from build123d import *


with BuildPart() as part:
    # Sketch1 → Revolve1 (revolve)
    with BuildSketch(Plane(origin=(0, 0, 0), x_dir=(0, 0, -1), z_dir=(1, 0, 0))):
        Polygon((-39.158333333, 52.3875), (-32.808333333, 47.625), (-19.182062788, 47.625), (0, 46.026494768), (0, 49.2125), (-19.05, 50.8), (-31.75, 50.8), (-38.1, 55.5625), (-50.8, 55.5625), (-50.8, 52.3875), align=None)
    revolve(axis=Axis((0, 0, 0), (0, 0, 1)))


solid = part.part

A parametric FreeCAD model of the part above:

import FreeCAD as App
import Part
import Sketcher

V = App.Vector
Q = App.Units.Quantity

doc = App.newDocument("Part")
body = doc.addObject("PartDesign::Body", "Body")

sketch1 = body.newObject("Sketcher::SketchObject", "Sketch")
sketch1.AttachmentSupport = (doc.getObject("YZ_Plane"), [""])
sketch1.MapMode = "FlatFace"
sketch1.addGeometry(Part.LineSegment(V(52.4, 39.2, 0), V(47.6, 32.8, 0)), False)
sketch1.addGeometry(Part.LineSegment(V(47.6, 32.8, 0), V(47.6, 19.2, 0)), False)
sketch1.addGeometry(Part.LineSegment(V(47.6, 19.2, 0), V(46, 0, 0)), False)
sketch1.addGeometry(Part.LineSegment(V(46, 0, 0), V(49.2, 0, 0)), False)
sketch1.addGeometry(Part.LineSegment(V(49.2, 0, 0), V(50.8, 19.1, 0)), False)
sketch1.addGeometry(Part.LineSegment(V(50.8, 19.1, 0), V(50.8, 31.8, 0)), False)
sketch1.addGeometry(Part.LineSegment(V(50.8, 31.8, 0), V(55.6, 38.1, 0)), False)
sketch1.addGeometry(Part.LineSegment(V(55.6, 38.1, 0), V(55.6, 50.8, 0)), False)
sketch1.addGeometry(Part.LineSegment(V(55.6, 50.8, 0), V(52.4, 50.8, 0)), False)
sketch1.addGeometry(Part.LineSegment(V(52.4, 50.8, 0), V(52.4, 39.2, 0)), False)
sketch1.addConstraint(Sketcher.Constraint("Coincident", 0, 2, 1, 1))
sketch1.addConstraint(Sketcher.Constraint("Coincident", 1, 2, 2, 1))
sketch1.addConstraint(Sketcher.Constraint("Coincident", 2, 2, 3, 1))
sketch1.addConstraint(Sketcher.Constraint("Coincident", 3, 2, 4, 1))
sketch1.addConstraint(Sketcher.Constraint("Coincident", 4, 2, 5, 1))
sketch1.addConstraint(Sketcher.Constraint("Coincident", 5, 2, 6, 1))
sketch1.addConstraint(Sketcher.Constraint("Coincident", 6, 2, 7, 1))
sketch1.addConstraint(Sketcher.Constraint("Coincident", 7, 2, 8, 1))
sketch1.addConstraint(Sketcher.Constraint("Coincident", 8, 2, 9, 1))
sketch1.addConstraint(Sketcher.Constraint("Coincident", 9, 2, 0, 1))
sketch1.addConstraint(Sketcher.Constraint("Vertical", 1))
sketch1.addConstraint(Sketcher.Constraint("Horizontal", 3))
sketch1.addConstraint(Sketcher.Constraint("Vertical", 5))
sketch1.addConstraint(Sketcher.Constraint("Vertical", 7))
sketch1.addConstraint(Sketcher.Constraint("Horizontal", 8))
sketch1.addConstraint(Sketcher.Constraint("Vertical", 9))
sketch1.addConstraint(Sketcher.Constraint("PointOnObject", 2, 2, -1))
sketch1.addConstraint(Sketcher.Constraint("Parallel", 2, 4))
sketch1.addConstraint(Sketcher.Constraint("Parallel", 0, 6))
sketch1.addConstraint(Sketcher.Constraint("Equal", 5, 7))
sketch1.addConstraint(Sketcher.Constraint("Equal", 0, 6))
sketch1.addConstraint(Sketcher.Constraint("DistanceY", 5, 1, 5, 2, Q("0.5 in")))
sketch1.addConstraint(Sketcher.Constraint("DistanceX", -1, 1, 4, 2, Q("2 in")))
sketch1.addConstraint(Sketcher.Constraint("DistanceY", -1, 1, 7, 2, Q("2 in")))
sketch1.addConstraint(Sketcher.Constraint("DistanceX", 8, 2, 8, 1, Q("0.125 in")))
sketch1.addConstraint(Sketcher.Constraint("DistanceY", -1, 1, 4, 2, Q("0.75 in")))
sketch1.addConstraint(Sketcher.Constraint("DistanceX", 3, 2, 6, 2, Q("0.25 in")))
sketch1.addConstraint(Sketcher.Constraint("Distance", 0, Q("0.3125 in")))
sketch1.addConstraint(Sketcher.Constraint("DistanceY", 1, 2, 1, 1, Q("13.626271 mm")))
sketch1.addConstraint(Sketcher.Constraint("Distance", 2, Q("19.248552 mm")))
revolution = body.newObject("PartDesign::Revolution", "Revolution")
revolution.Profile = sketch1
revolution.ReferenceAxis = (sketch1, ["V_Axis"])
revolution.Angle = 360

doc.recompute()
